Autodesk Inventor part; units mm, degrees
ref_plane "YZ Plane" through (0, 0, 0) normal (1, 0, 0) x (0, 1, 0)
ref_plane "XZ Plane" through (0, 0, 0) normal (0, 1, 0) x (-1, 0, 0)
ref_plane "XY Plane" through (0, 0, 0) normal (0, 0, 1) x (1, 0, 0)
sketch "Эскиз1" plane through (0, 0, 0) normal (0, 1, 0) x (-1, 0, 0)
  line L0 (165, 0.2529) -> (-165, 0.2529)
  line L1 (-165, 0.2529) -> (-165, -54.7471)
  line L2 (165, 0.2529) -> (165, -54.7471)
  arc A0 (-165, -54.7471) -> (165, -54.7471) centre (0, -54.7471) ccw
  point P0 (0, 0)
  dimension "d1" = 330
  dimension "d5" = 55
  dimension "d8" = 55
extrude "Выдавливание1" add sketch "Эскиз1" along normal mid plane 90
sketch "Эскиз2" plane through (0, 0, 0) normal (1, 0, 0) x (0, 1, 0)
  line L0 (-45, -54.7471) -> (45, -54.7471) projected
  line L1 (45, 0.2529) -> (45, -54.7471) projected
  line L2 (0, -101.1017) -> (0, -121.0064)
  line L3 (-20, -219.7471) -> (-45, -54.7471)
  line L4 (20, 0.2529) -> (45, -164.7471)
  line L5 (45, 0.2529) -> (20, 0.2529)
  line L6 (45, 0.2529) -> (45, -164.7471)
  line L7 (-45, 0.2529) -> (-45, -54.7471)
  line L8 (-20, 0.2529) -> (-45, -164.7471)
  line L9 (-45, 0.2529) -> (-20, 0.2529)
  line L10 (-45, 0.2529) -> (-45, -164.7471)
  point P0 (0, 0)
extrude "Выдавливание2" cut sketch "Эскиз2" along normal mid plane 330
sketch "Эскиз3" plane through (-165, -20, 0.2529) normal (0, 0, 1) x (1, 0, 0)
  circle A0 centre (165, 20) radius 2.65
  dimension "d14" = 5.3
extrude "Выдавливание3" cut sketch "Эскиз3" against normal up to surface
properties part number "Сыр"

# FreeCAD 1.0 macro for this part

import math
import FreeCAD as App
import Part
import Sketcher
from FreeCAD import Vector

doc = App.newDocument("Part")
params = doc.addObject("Spreadsheet::Sheet", "Params")
for row, (alias, value) in enumerate([
    ("sketch1_radius", "165 mm"),
    ("sketch1_height", "55 mm"),
    ("pad1_length", "90 mm"),
    ("sketch2_width", "25 mm"),
    ("sketch2_height", "165 mm"),
    ("pocket1_length", "330 mm"),
    ("sketch3_diameter", "5.3 mm"),
], start=1):
    params.set(f"A{row}", alias)
    params.set(f"B{row}", "=" + value)
    params.setAlias(f"B{row}", alias)

body = doc.addObject("PartDesign::Body", "Body")

# Sketch on XZ plane
sketch1 = body.newObject("Sketcher::SketchObject", "Sketch")
sketch1.AttachmentSupport = (doc.getObject("XZ_Plane"), [""])
sketch1.MapMode = "FlatFace"
sketch1.addGeometry([
    Part.LineSegment(Vector(-165, -54.7471, 0), Vector(-165, 0.2529, 0)),
    Part.LineSegment(Vector(-165, 0.2529, 0), Vector(165, 0.2529, 0)),
    Part.LineSegment(Vector(165, 0.2529, 0), Vector(165, -54.7471, 0)),
    Part.ArcOfCircle(Part.Circle(Vector(0, -54.7471, 0), Vector(0, 0, 1), 165), math.radians(180), math.radians(360)),
], False)
sketch1.addConstraint([
    Sketcher.Constraint("Coincident", 0, 2, 1, 1),
    Sketcher.Constraint("Coincident", 1, 2, 2, 1),
    Sketcher.Constraint("Tangent", 2, 2, 3, 2),
    Sketcher.Constraint("Tangent", 3, 1, 0, 1),
    Sketcher.Constraint("Vertical", 0),
    Sketcher.Constraint("Horizontal", 1),
    Sketcher.Constraint("Vertical", 2),
    Sketcher.Constraint("PointOnObject", 3, 3, -2),
    Sketcher.Constraint("Radius", 3, 165.0),
    Sketcher.Constraint("DistanceY", 0, 1, 0, 2, 55.0),
    Sketcher.Constraint("DistanceY", 3, 3, -1, 1, 54.747),
])
sketch1.setExpression("Constraints[8]", "Params.sketch1_radius")
sketch1.setExpression("Constraints[9]", "Params.sketch1_height")
pad1 = body.newObject("PartDesign::Pad", "Pad")
pad1.Profile = sketch1
pad1.setExpression("Length", "Params.pad1_length")
pad1.Midplane = True

# Sketch on YZ plane
sketch2 = body.newObject("Sketcher::SketchObject", "Sketch001")
sketch2.AttachmentSupport = (doc.getObject("YZ_Plane"), [""])
sketch2.MapMode = "FlatFace"
sketch2.addGeometry([
    Part.LineSegment(Vector(-45, 0.2529, 0), Vector(-45, -164.7471, 0)),  # 0
    Part.LineSegment(Vector(-45, -164.7471, 0), Vector(-20, 0.2529, 0)),  # 1
    Part.LineSegment(Vector(-20, 0.2529, 0), Vector(-45, 0.2529, 0)),  # 2
    Part.LineSegment(Vector(20, 0.2529, 0), Vector(45, -164.7471, 0)),  # 3
    Part.LineSegment(Vector(45, -164.7471, 0), Vector(45, 0.2529, 0)),  # 4
    Part.LineSegment(Vector(45, 0.2529, 0), Vector(20, 0.2529, 0)),  # 5
], False)
sketch2.addConstraint([
    Sketcher.Constraint("Coincident", 0, 2, 1, 1),
    Sketcher.Constraint("Coincident", 1, 2, 2, 1),
    Sketcher.Constraint("Coincident", 2, 2, 0, 1),
    Sketcher.Constraint("Coincident", 3, 2, 4, 1),
    Sketcher.Constraint("Coincident", 4, 2, 5, 1),
    Sketcher.Constraint("Coincident", 5, 2, 3, 1),
    Sketcher.Constraint("Vertical", 0),
    Sketcher.Constraint("Horizontal", 2),
    Sketcher.Constraint("Vertical", 4),
    Sketcher.Constraint("Horizontal", 5),
    Sketcher.Constraint("Symmetric", 0, 2, 3, 2, -2),
    Sketcher.Constraint("Symmetric", 1, 2, 5, 2, -2),
    Sketcher.Constraint("DistanceX", 2, 2, 2, 1, 25.0),
    Sketcher.Constraint("DistanceY", 0, 2, 0, 1, 165.0),
    Sketcher.Constraint("DistanceX", 0, 2, -1, 1, 45.0),
    Sketcher.Constraint("DistanceY", 0, 2, -1, 1, 164.747),
])
sketch2.setExpression("Constraints[12]", "Params.sketch2_width")
sketch2.setExpression("Constraints[13]", "Params.sketch2_height")
pocket1 = body.newObject("PartDesign::Pocket", "Pocket")
pocket1.Profile = sketch2
pocket1.setExpression("Length", "Params.pocket1_length")
pocket1.Midplane = True

# Sketch on XY plane
sketch3 = body.newObject("Sketcher::SketchObject", "Sketch002")
sketch3.AttachmentSupport = (doc.getObject("XY_Plane"), [""])
sketch3.MapMode = "FlatFace"
sketch3.AttachmentOffset = App.Placement(Vector(0, 0, 0.2529), App.Rotation())
sketch3.addGeometry(Part.Circle(Vector(0, 0, 0), Vector(0, 0, 1), 2.65), False)
sketch3.addConstraint([
    Sketcher.Constraint("Coincident", 0, 3, -1, 1),
    Sketcher.Constraint("Diameter", 0, 5.3),
])
sketch3.setExpression("Constraints[1]", "Params.sketch3_diameter")
pocket2 = body.newObject("PartDesign::Pocket", "Pocket001")
pocket2.Profile = sketch3
pocket2.Type = "UpToFirst"

doc.recompute()
